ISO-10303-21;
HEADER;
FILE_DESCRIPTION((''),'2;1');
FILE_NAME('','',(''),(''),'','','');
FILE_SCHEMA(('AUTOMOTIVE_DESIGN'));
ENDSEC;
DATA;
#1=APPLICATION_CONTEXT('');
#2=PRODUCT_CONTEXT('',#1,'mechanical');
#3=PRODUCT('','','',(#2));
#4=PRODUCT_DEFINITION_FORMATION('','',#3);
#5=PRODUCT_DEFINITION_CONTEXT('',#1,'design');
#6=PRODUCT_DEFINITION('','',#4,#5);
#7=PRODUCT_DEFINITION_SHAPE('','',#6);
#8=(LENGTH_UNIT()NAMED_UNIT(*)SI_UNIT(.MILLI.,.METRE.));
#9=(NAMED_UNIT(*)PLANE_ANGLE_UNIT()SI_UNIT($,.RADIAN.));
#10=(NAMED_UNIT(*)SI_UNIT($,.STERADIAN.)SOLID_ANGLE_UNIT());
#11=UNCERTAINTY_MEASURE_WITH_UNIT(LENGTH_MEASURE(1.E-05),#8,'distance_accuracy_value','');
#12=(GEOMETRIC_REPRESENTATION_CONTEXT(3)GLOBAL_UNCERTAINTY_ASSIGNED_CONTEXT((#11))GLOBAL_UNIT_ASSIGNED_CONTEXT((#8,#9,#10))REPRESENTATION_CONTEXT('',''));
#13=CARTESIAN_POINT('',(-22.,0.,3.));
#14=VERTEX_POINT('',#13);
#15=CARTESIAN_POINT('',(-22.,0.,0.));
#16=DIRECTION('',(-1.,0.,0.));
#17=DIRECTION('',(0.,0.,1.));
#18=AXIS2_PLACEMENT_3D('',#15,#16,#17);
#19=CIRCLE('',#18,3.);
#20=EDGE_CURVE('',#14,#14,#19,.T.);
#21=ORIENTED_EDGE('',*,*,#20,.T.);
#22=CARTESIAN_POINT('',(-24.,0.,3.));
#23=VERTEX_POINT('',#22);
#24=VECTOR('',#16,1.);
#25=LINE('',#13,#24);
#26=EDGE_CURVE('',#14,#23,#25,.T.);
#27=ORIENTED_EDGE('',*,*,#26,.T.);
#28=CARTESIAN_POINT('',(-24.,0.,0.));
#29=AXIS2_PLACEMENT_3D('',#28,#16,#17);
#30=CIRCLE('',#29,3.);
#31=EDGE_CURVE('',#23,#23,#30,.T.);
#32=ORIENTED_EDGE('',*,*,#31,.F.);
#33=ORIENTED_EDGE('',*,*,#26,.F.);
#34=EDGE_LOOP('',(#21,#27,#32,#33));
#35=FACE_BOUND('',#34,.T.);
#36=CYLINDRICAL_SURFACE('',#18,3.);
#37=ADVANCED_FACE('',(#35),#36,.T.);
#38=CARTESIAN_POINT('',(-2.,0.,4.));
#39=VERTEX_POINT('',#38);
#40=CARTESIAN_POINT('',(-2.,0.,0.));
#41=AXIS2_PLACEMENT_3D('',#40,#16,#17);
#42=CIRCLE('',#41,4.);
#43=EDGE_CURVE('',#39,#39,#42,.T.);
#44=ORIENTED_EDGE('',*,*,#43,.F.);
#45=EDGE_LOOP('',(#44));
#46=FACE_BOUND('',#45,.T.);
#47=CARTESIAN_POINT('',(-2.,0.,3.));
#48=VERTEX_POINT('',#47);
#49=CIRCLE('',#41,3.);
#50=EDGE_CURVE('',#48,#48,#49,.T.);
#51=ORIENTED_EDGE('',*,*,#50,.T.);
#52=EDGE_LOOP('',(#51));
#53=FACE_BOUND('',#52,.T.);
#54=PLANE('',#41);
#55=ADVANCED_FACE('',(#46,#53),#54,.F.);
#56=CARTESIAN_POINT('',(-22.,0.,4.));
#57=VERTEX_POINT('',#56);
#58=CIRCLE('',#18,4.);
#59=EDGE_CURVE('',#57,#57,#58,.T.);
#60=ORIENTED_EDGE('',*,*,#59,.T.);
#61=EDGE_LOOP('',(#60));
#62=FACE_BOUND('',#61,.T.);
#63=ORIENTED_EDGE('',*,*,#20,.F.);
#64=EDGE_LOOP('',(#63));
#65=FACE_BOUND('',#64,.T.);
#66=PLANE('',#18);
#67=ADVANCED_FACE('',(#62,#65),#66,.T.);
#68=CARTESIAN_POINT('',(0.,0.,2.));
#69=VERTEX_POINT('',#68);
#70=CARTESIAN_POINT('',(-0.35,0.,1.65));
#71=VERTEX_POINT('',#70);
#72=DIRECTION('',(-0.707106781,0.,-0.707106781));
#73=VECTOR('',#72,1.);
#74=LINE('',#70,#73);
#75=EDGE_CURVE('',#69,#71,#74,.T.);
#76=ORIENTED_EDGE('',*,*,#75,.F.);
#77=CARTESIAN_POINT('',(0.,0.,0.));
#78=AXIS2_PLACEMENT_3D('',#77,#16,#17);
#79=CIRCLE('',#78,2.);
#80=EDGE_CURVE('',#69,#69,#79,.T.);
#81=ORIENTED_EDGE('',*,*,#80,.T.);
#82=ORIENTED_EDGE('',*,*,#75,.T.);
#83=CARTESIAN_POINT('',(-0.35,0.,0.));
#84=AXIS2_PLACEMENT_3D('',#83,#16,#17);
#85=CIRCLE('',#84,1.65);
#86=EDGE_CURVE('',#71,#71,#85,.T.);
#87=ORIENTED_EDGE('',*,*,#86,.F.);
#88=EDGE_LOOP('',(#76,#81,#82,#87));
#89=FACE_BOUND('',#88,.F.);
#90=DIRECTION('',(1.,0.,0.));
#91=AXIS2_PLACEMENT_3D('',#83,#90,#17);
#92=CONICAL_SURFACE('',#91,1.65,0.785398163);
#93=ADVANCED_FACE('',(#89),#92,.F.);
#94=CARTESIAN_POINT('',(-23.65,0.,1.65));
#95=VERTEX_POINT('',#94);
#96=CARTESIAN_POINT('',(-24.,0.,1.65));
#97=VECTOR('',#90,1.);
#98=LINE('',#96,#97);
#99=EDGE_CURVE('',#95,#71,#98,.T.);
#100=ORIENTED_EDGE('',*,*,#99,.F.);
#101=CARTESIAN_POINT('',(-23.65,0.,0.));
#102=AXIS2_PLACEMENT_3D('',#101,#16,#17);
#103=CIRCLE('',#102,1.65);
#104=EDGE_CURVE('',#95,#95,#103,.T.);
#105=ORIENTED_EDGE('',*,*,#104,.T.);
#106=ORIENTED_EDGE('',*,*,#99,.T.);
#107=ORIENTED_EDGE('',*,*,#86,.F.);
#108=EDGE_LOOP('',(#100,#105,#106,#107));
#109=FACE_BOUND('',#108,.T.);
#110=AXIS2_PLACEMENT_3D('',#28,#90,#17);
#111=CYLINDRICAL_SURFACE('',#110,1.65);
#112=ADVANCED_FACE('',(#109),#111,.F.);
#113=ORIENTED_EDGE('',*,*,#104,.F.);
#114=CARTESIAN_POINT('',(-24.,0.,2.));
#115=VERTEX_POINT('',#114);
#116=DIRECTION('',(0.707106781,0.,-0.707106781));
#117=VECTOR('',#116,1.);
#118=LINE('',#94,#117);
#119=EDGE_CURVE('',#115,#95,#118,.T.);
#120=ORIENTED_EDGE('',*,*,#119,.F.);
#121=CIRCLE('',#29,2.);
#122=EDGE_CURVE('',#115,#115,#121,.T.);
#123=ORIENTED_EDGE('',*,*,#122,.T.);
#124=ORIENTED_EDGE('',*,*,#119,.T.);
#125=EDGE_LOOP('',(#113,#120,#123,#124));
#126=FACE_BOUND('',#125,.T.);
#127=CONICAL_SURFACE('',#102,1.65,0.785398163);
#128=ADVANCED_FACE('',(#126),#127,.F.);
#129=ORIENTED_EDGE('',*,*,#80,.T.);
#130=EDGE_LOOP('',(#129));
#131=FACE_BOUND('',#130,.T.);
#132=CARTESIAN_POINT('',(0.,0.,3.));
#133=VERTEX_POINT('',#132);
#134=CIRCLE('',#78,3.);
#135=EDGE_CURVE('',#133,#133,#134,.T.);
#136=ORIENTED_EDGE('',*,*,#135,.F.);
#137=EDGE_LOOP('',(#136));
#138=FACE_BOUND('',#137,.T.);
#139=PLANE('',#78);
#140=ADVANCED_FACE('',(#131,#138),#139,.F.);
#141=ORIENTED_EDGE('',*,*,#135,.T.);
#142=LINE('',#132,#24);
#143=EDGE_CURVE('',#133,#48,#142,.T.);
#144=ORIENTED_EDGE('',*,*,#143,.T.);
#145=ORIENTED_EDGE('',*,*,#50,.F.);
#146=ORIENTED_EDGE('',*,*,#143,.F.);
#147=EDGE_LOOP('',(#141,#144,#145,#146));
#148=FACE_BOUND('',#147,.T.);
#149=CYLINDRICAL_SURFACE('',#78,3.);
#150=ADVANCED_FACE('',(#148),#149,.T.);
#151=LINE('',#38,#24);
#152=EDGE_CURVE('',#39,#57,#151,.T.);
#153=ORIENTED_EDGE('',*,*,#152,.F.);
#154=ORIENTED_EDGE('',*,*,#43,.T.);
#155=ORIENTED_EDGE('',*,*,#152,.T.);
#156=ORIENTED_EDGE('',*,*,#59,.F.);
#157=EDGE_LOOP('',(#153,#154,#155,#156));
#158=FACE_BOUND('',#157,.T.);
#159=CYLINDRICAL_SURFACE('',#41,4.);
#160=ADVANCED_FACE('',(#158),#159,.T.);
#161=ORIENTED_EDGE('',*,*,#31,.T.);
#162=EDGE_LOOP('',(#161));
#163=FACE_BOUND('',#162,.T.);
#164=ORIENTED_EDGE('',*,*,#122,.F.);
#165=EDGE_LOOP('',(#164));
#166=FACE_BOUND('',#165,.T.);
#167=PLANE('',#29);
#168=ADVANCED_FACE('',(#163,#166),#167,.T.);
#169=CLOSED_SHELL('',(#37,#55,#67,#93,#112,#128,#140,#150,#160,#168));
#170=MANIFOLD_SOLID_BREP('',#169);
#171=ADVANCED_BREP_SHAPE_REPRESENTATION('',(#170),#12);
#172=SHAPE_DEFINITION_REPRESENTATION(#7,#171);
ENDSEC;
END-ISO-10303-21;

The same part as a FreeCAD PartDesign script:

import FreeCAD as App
import Part
import Sketcher

V = App.Vector


def edges_at(feature, points):
    """Names of the edges that pass closest to the given points."""
    edges = feature.Shape.Edges
    near = lambda p: min(range(len(edges)), key=lambda i: edges[i].distToShape(Part.Vertex(*p))[0])
    return sorted({f"Edge{near(p) + 1}" for p in points})

doc = App.newDocument("Part")
body = doc.addObject("PartDesign::Body", "Body")

# Sketch on XZ plane
sketch1 = body.newObject("Sketcher::SketchObject", "Sketch")
sketch1.AttachmentSupport = (doc.getObject("XZ_Plane"), [""])
sketch1.MapMode = "FlatFace"
sketch1.addGeometry([
    Part.LineSegment(V(0, 1.65, 0), V(0, 3, 0)),  # 0
    Part.LineSegment(V(0, 3, 0), V(-2, 3, 0)),  # 1
    Part.LineSegment(V(-2, 3, 0), V(-2, 4, 0)),  # 2
    Part.LineSegment(V(-2, 4, 0), V(-22, 4, 0)),  # 3
    Part.LineSegment(V(-22, 4, 0), V(-22, 3, 0)),  # 4
    Part.LineSegment(V(-22, 3, 0), V(-24, 3, 0)),  # 5
    Part.LineSegment(V(-24, 3, 0), V(-24, 1.65, 0)),  # 6
    Part.LineSegment(V(-24, 1.65, 0), V(0, 1.65, 0)),  # 7
], False)
sketch1.addConstraint([
    Sketcher.Constraint("Coincident", 0, 2, 1, 1),
    Sketcher.Constraint("Coincident", 1, 2, 2, 1),
    Sketcher.Constraint("Coincident", 2, 2, 3, 1),
    Sketcher.Constraint("Coincident", 3, 2, 4, 1),
    Sketcher.Constraint("Coincident", 4, 2, 5, 1),
    Sketcher.Constraint("Coincident", 5, 2, 6, 1),
    Sketcher.Constraint("Coincident", 6, 2, 7, 1),
    Sketcher.Constraint("Coincident", 7, 2, 0, 1),
    Sketcher.Constraint("Vertical", 0),
    Sketcher.Constraint("Horizontal", 1),
    Sketcher.Constraint("Vertical", 2),
    Sketcher.Constraint("Horizontal", 3),
    Sketcher.Constraint("Vertical", 4),
    Sketcher.Constraint("Horizontal", 5),
    Sketcher.Constraint("Vertical", 6),
    Sketcher.Constraint("Horizontal", 7),
    Sketcher.Constraint("PointOnObject", 0, 2, -2),
    Sketcher.Constraint("Horizontal", 1, 2, 4, 2),
    Sketcher.Constraint("Equal", 1, 5),
    Sketcher.Constraint("DistanceX", 1, 2, 1, 1, 2.0),
    Sketcher.Constraint("DistanceX", 3, 2, 3, 1, 20.0),
    Sketcher.Constraint("DistanceY", 2, 1, 2, 2, 1.0),
    Sketcher.Constraint("DistanceY", -1, 1, 0, 2, 3.0),
    Sketcher.Constraint("DistanceY", 0, 1, 0, 2, 1.35),
])
revolution = body.newObject("PartDesign::Revolution", "Revolution")
revolution.Profile = sketch1
revolution.ReferenceAxis = (sketch1, ["H_Axis"])
revolution.Angle = 360
doc.recompute()

chamfer = body.newObject("PartDesign::Chamfer", "Chamfer")
chamfer.Base = (revolution, edges_at(revolution, [(-24, 0, -1.65), (0, 0, -1.65)]))
chamfer.Size = 0.35

doc.recompute()
